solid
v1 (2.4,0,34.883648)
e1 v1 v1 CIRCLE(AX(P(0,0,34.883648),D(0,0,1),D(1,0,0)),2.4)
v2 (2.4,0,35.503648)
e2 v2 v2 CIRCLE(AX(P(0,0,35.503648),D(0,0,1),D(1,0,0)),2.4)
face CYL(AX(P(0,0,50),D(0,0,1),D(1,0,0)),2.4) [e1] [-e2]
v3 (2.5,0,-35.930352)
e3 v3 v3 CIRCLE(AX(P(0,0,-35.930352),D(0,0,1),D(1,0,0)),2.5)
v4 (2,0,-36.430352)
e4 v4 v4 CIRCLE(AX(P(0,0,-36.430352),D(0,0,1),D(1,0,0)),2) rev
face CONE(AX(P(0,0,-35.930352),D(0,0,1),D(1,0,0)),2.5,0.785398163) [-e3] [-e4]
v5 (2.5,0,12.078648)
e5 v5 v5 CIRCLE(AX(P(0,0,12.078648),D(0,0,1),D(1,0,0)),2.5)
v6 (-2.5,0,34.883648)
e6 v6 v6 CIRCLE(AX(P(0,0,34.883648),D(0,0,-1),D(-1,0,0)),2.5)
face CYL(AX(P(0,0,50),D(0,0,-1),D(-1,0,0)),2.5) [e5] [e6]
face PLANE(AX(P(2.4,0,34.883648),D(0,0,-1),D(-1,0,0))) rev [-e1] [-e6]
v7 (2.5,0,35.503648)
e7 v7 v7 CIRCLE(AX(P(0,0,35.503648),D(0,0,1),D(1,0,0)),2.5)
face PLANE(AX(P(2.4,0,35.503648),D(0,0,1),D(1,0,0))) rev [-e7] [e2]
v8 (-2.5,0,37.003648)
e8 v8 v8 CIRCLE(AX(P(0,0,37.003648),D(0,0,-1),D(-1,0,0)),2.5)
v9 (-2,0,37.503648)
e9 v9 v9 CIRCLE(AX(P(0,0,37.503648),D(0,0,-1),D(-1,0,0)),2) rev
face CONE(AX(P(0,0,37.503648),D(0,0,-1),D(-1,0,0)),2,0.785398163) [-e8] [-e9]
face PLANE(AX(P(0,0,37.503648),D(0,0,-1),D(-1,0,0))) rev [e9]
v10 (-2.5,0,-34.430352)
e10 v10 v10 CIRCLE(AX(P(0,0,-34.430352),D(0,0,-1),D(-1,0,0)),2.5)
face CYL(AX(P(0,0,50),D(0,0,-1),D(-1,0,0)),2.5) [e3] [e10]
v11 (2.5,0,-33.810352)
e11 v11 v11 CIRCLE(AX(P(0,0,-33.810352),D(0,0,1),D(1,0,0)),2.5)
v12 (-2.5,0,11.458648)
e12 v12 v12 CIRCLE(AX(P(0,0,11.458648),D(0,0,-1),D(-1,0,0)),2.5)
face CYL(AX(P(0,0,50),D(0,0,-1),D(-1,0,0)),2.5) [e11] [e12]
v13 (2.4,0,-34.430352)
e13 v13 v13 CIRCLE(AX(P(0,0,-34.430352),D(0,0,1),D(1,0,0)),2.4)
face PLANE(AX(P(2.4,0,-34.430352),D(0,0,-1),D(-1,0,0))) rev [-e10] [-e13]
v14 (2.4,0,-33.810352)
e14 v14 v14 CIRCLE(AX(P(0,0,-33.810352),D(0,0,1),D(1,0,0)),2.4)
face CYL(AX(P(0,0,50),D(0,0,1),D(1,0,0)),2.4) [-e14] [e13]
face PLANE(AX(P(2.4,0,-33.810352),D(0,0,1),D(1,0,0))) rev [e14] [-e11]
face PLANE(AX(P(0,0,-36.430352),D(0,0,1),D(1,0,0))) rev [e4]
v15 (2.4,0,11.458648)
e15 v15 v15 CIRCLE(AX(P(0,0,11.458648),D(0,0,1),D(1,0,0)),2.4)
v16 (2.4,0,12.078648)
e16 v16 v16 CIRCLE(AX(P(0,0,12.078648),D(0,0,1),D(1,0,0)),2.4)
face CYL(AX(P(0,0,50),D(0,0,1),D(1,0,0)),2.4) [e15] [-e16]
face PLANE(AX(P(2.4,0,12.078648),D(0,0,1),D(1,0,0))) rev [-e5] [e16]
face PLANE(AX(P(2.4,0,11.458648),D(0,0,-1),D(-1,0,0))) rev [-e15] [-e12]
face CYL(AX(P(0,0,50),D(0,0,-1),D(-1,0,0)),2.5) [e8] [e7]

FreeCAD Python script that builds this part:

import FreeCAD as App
import Part
import Sketcher


def edges_at(feature, points):
    """Names of the edges that pass closest to the given points."""
    edges = feature.Shape.Edges
    near = lambda p: min(range(len(edges)), key=lambda i: edges[i].distToShape(Part.Vertex(*p))[0])
    return sorted({f"Edge{near(p) + 1}" for p in points})


def add_polygon(sketch, points):
    """Adds a closed chain of lines whose ends are joined by coincident constraints."""
    first, n = sketch.GeometryCount, len(points)
    for a, b in zip(points, points[1:] + points[:1]):
        sketch.addGeometry(Part.LineSegment(App.Vector(*a, 0), App.Vector(*b, 0)), False)
    for i in range(n):
        sketch.addConstraint(Sketcher.Constraint("Coincident", first + i, 2, first + (i + 1) % n, 1))

doc = App.newDocument("Part")
body = doc.addObject("PartDesign::Body", "Body")

# Sketch on XY plane
sketch1 = body.newObject("Sketcher::SketchObject", "Sketch")
sketch1.AttachmentSupport = (doc.getObject("XY_Plane"), [""])
sketch1.MapMode = "FlatFace"
sketch1.addGeometry(Part.Circle(App.Vector(0, 0, 0), App.Vector(0, 0, 1), 2.5), False)
sketch1.addConstraint([
    Sketcher.Constraint("Coincident", 0, 3, -1, 1),
    Sketcher.Constraint("Diameter", 0, 5.0),
])
pad1 = body.newObject("PartDesign::Pad", "Pad")
pad1.Profile = sketch1
pad1.Type = "TwoLengths"
pad1.Length = 50
pad1.Length2 = 50
doc.recompute()

chamfer = body.newObject("PartDesign::Chamfer", "Chamfer")
chamfer.Base = (pad1, edges_at(pad1, [(-2.5, 0, -50), (-2.5, 0, 50)]))
chamfer.Size = 0.35

# Sketch on XZ plane
sketch2 = body.newObject("Sketcher::SketchObject", "Sketch001")
sketch2.AttachmentSupport = (doc.getObject("XZ_Plane"), [""])
sketch2.MapMode = "FlatFace"
add_polygon(sketch2, [(2.4, -34.4), (2.4, -33.8), (3.4, -33.8), (3.4, -34.4)])  # lines 0-3
add_polygon(sketch2, [(0, -50), (0, -36.4), (2.5, -36.4), (2.5, -50)])  # lines 4-7
add_polygon(sketch2, [(2.4, 34.9), (2.4, 35.5), (3.4, 35.5), (3.4, 34.9)])  # lines 8-11
add_polygon(sketch2, [(0, 37.5), (0, 50), (2.5, 50), (2.5, 37.5)])  # lines 12-15
add_polygon(sketch2, [(2.4, 11.5), (2.4, 12.1), (3.4, 12.1), (3.4, 11.5)])  # lines 16-19
sketch2.addConstraint([
    Sketcher.Constraint("Vertical", 0),
    Sketcher.Constraint("Horizontal", 1),
    Sketcher.Constraint("Vertical", 2),
    Sketcher.Constraint("Horizontal", 3),
    Sketcher.Constraint("Vertical", 4),
    Sketcher.Constraint("Horizontal", 5),
    Sketcher.Constraint("Vertical", 6),
    Sketcher.Constraint("Horizontal", 7),
    Sketcher.Constraint("Vertical", 8),
    Sketcher.Constraint("Horizontal", 9),
    Sketcher.Constraint("Vertical", 10),
    Sketcher.Constraint("Horizontal", 11),
    Sketcher.Constraint("Vertical", 12),
    Sketcher.Constraint("Horizontal", 13),
    Sketcher.Constraint("Vertical", 14),
    Sketcher.Constraint("Horizontal", 15),
    Sketcher.Constraint("Vertical", 16),
    Sketcher.Constraint("Horizontal", 17),
    Sketcher.Constraint("Vertical", 18),
    Sketcher.Constraint("Horizontal", 19),
    Sketcher.Constraint("Symmetric", 7, 2, 12, 2, -1, 1),
    Sketcher.Constraint("PointOnObject", 4, 2, -2),
    Sketcher.Constraint("Vertical", 3, 2, 8, 2),
    Sketcher.Constraint("Vertical", 2, 2, 9, 2),
    Sketcher.Constraint("Vertical", 6, 2, 13, 2),
    Sketcher.Constraint("Vertical", 11, 2, 16, 2),
    Sketcher.Constraint("Vertical", 10, 2, 17, 2),
    Sketcher.Constraint("Equal", 2, 8),
    Sketcher.Constraint("Equal", 10, 16),
    Sketcher.Constraint("DistanceX", 1, 1, 1, 2, 1.0),
    Sketcher.Constraint("DistanceX", 5, 1, 5, 2, 2.5),
    Sketcher.Constraint("DistanceY", 6, 2, -1, 1, 50.0),
    Sketcher.Constraint("DistanceY", 4, 2, 3, 2, 2.0),
    Sketcher.Constraint("DistanceY", 8, 2, 14, 2, 2.0),
    Sketcher.Constraint("DistanceY", 0, 1, 0, 2, 0.62),
    Sketcher.Constraint("DistanceX", -1, 1, 0, 2, 2.4),
    Sketcher.Constraint("DistanceY", 0, 2, 8, 2, 69.314),
    Sketcher.Constraint("DistanceY", 16, 2, 11, 2, 22.805),
    Sketcher.Constraint("DistanceY", 4, 1, 4, 2, 13.569648),
])
groove = body.newObject("PartDesign::Groove", "Groove")
groove.Profile = sketch2
groove.ReferenceAxis = (sketch2, ["V_Axis"])
groove.Angle = 360
doc.recompute()

chamfer2 = body.newObject("PartDesign::Chamfer", "Chamfer001")
chamfer2.Base = (groove, edges_at(groove, [(-2.5, 0, 37.504), (-2.5, 0, -36.43)]))
chamfer2.Size = 0.5

doc.recompute()
